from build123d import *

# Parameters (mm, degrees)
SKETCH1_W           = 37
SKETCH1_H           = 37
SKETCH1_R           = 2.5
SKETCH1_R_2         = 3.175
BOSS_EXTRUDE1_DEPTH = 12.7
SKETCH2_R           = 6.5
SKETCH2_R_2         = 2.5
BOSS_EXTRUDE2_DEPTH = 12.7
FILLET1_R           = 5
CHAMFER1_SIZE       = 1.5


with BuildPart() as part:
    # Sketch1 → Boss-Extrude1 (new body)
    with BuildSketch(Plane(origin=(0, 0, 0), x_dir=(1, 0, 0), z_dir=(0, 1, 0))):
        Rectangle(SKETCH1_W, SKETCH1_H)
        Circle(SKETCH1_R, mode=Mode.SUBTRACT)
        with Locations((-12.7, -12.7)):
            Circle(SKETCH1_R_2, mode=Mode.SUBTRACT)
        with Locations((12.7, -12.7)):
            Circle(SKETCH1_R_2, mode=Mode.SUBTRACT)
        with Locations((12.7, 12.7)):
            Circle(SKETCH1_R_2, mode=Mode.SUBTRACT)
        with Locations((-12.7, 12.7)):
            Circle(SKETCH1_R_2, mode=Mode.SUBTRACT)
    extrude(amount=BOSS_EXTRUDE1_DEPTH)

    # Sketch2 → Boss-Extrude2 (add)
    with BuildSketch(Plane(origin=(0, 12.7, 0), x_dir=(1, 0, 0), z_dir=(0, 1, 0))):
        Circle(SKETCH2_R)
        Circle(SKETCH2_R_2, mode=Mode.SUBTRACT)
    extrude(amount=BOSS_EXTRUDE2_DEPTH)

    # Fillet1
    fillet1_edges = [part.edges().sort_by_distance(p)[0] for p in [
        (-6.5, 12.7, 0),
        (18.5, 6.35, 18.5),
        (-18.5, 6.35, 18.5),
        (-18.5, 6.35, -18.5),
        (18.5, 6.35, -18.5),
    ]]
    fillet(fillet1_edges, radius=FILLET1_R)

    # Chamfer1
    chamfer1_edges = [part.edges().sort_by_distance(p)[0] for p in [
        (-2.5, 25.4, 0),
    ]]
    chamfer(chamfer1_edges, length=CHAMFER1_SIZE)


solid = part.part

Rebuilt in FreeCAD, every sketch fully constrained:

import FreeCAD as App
import Part
import Sketcher
from FreeCAD import Vector


def edges_at(feature, points):
    """Names of the edges that pass closest to the given points."""
    edges = feature.Shape.Edges
    near = lambda p: min(range(len(edges)), key=lambda i: edges[i].distToShape(Part.Vertex(*p))[0])
    return sorted({f"Edge{near(p) + 1}" for p in points})


def add_polygon(sketch, points):
    """Adds a closed chain of lines whose ends are joined by coincident constraints."""
    first, n = sketch.GeometryCount, len(points)
    for a, b in zip(points, points[1:] + points[:1]):
        sketch.addGeometry(Part.LineSegment(App.Vector(*a, 0), App.Vector(*b, 0)), False)
    for i in range(n):
        sketch.addConstraint(Sketcher.Constraint("Coincident", first + i, 2, first + (i + 1) % n, 1))

doc = App.newDocument("Part")
body = doc.addObject("PartDesign::Body", "Body")

# Sketch on XZ plane
sketch1 = doc.addObject("Sketcher::SketchObject", "Sketch")
body.addObject(sketch1)
sketch1.AttachmentSupport = (doc.XZ_Plane, [""])
sketch1.MapMode = "FlatFace"
add_polygon(sketch1, [(-18.5, -18.5), (-18.5, 18.5), (18.5, 18.5), (18.5, -18.5)])  # lines 0-3
sketch1.addGeometry(Part.Circle(Vector(-12.7, 12.7, 0), Vector(0, 0, 1), 3.2), False)  # 4
sketch1.addGeometry(Part.Circle(Vector(12.7, 12.7, 0), Vector(0, 0, 1), 3.2), False)  # 5
sketch1.addGeometry(Part.Circle(Vector(-12.7, -12.7, 0), Vector(0, 0, 1), 3.2), False)  # 6
sketch1.addGeometry(Part.Circle(Vector(0, 0, 0), Vector(0, 0, 1), 2.5), False)  # 7
sketch1.addGeometry(Part.Circle(Vector(12.7, -12.7, 0), Vector(0, 0, 1), 3.2), False)  # 8
sketch1.addConstraint([
    Sketcher.Constraint("Vertical", 0),
    Sketcher.Constraint("Horizontal", 1),
    Sketcher.Constraint("Vertical", 2),
    Sketcher.Constraint("Horizontal", 3),
    Sketcher.Constraint("Coincident", 7, 3, -1, 1),
    Sketcher.Constraint("Equal", 4, 5),
    Sketcher.Constraint("Equal", 5, 6),
    Sketcher.Constraint("Equal", 6, 8),
    Sketcher.Constraint("Symmetric", 5, 3, 6, 3, -1, 1),
    Sketcher.Constraint("Symmetric", 4, 3, 8, 3, -1, 1),
    Sketcher.Constraint("Symmetric", 0, 2, 2, 2, -1, 1),
    Sketcher.Constraint("Symmetric", 4, 3, 5, 3, -2),
    Sketcher.Constraint("Equal", 3, 0),
    Sketcher.Constraint("Diameter", 7, 5.0),
    Sketcher.Constraint("Diameter", 4, 6.35),
    Sketcher.Constraint("DistanceX", 1, 1, 1, 2, 37.0),
    Sketcher.Constraint("DistanceX", 4, 3, -1, 1, 12.7),
    Sketcher.Constraint("DistanceY", -1, 1, 4, 3, 12.7),
])
pad1 = doc.addObject("PartDesign::Pad", "Pad")
body.addObject(pad1)
pad1.Profile = sketch1
pad1.Length = 12.7
pad1.Reversed = True

# Sketch on XZ plane
sketch2 = doc.addObject("Sketcher::SketchObject", "Sketch001")
body.addObject(sketch2)
sketch2.AttachmentSupport = (doc.XZ_Plane, [""])
sketch2.MapMode = "FlatFace"
sketch2.AttachmentOffset = App.Placement(Vector(0, 0, -12.7), App.Rotation())
sketch2.addGeometry([
    Part.Circle(Vector(0, 0, 0), Vector(0, 0, 1), 6.5),
    Part.Circle(Vector(0, 0, 0), Vector(0, 0, 1), 2.5),
], False)
sketch2.addConstraint([
    Sketcher.Constraint("Coincident", 0, 3, -1, 1),
    Sketcher.Constraint("Coincident", 1, 3, -1, 1),
    Sketcher.Constraint("Diameter", 0, 13.0),
    Sketcher.Constraint("Diameter", 1, 5.0),
])
pad2 = doc.addObject("PartDesign::Pad", "Pad001")
body.addObject(pad2)
pad2.Profile = sketch2
pad2.Length = 12.7
pad2.Reversed = True
doc.recompute()

fillet = doc.addObject("PartDesign::Fillet", "Fillet")
body.addObject(fillet)
fillet.Base = (pad2, edges_at(pad2, [
    (-6.5, 12.7, 0),
    (18.5, 6.35, 18.5),
    (-18.5, 6.35, 18.5),
    (-18.5, 6.35, -18.5),
    (18.5, 6.35, -18.5),
]))
fillet.Radius = 5
doc.recompute()

chamfer = doc.addObject("PartDesign::Chamfer", "Chamfer")
body.addObject(chamfer)
chamfer.Base = (fillet, edges_at(fillet, [(-2.5, 25.4, 0)]))
chamfer.Size = 1.5

doc.recompute()
